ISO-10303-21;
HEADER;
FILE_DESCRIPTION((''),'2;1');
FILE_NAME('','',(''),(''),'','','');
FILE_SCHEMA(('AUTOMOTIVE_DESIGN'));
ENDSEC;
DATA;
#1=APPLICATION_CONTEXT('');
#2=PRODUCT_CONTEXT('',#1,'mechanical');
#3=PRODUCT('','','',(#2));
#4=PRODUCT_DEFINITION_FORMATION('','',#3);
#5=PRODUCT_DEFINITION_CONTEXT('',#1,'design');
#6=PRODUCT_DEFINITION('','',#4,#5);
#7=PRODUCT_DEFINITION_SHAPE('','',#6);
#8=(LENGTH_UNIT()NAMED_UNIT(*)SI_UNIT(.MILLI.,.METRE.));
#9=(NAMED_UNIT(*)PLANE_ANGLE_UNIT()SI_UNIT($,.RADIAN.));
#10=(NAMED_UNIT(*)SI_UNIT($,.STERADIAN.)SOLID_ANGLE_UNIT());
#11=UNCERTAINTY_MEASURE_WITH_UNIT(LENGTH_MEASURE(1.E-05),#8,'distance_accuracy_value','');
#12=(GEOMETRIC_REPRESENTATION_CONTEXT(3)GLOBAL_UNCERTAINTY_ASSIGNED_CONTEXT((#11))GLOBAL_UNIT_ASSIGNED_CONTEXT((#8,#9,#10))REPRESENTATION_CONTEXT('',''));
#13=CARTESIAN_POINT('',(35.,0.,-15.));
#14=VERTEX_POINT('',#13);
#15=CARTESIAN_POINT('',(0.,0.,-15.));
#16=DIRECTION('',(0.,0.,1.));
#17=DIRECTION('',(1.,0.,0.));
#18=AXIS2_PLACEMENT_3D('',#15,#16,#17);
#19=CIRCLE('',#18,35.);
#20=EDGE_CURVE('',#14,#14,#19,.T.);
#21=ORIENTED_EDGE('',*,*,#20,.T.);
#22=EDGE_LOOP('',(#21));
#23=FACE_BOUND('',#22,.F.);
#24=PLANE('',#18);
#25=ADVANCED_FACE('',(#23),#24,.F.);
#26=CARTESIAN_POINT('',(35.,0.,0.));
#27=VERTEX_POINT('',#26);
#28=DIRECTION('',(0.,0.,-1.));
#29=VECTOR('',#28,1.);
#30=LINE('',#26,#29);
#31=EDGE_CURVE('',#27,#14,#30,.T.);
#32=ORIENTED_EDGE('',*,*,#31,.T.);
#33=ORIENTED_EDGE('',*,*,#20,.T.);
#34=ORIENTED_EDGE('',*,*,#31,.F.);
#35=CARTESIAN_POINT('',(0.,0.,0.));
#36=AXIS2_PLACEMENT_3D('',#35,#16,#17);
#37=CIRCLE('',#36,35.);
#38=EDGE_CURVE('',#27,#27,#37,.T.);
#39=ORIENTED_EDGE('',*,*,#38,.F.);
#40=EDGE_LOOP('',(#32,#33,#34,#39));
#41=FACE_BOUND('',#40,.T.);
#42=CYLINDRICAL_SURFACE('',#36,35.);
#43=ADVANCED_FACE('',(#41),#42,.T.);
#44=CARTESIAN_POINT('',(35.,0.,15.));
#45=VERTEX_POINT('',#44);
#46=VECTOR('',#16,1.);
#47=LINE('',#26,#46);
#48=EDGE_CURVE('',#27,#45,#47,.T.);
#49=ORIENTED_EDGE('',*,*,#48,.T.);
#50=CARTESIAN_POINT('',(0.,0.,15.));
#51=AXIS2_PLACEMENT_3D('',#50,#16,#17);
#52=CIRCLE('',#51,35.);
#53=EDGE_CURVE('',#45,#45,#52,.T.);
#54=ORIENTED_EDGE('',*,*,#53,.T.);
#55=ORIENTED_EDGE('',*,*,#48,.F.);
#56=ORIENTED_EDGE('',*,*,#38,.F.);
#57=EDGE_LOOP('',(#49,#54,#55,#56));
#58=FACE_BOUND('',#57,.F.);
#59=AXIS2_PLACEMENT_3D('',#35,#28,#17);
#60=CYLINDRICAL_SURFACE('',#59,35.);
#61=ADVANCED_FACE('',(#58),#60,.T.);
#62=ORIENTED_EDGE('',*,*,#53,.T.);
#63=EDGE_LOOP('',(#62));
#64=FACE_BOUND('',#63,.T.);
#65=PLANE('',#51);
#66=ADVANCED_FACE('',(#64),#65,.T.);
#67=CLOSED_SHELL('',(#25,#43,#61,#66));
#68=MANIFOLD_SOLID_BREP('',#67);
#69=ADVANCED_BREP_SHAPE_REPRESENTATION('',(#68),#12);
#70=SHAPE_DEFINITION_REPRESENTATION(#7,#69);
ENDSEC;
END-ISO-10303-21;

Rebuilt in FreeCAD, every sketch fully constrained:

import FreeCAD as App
import Part
import Sketcher
Q = App.Units.Quantity

doc = App.newDocument("Part")
params = doc.addObject("Spreadsheet::Sheet", "Params")
for row, (alias, value) in enumerate([
    ("sketch1_diameter", "70 mm"),
    ("pad1_length", "30 mm"),
], start=1):
    params.set(f"A{row}", alias)
    params.set(f"B{row}", "=" + value)
    params.setAlias(f"B{row}", alias)

body = doc.addObject("PartDesign::Body", "Body")

sketch1 = body.newObject("Sketcher::SketchObject", "Sketch")
sketch1.AttachmentSupport = (doc.getObject("XY_Plane"), [""])
sketch1.MapMode = "FlatFace"
sketch1.addGeometry(Part.Circle(App.Vector(0, 0, 0), App.Vector(0, 0, 1), 35), False)
sketch1.addConstraint([
    Sketcher.Constraint("Coincident", 0, 3, -1, 1),
    Sketcher.Constraint("Diameter", 0, Q("70 mm")),
])
sketch1.setExpression("Constraints[1]", "Params.sketch1_diameter")
pad1 = body.newObject("PartDesign::Pad", "Pad")
pad1.Profile = sketch1
pad1.setExpression("Length", "Params.pad1_length")
pad1.Midplane = True

doc.recompute()
